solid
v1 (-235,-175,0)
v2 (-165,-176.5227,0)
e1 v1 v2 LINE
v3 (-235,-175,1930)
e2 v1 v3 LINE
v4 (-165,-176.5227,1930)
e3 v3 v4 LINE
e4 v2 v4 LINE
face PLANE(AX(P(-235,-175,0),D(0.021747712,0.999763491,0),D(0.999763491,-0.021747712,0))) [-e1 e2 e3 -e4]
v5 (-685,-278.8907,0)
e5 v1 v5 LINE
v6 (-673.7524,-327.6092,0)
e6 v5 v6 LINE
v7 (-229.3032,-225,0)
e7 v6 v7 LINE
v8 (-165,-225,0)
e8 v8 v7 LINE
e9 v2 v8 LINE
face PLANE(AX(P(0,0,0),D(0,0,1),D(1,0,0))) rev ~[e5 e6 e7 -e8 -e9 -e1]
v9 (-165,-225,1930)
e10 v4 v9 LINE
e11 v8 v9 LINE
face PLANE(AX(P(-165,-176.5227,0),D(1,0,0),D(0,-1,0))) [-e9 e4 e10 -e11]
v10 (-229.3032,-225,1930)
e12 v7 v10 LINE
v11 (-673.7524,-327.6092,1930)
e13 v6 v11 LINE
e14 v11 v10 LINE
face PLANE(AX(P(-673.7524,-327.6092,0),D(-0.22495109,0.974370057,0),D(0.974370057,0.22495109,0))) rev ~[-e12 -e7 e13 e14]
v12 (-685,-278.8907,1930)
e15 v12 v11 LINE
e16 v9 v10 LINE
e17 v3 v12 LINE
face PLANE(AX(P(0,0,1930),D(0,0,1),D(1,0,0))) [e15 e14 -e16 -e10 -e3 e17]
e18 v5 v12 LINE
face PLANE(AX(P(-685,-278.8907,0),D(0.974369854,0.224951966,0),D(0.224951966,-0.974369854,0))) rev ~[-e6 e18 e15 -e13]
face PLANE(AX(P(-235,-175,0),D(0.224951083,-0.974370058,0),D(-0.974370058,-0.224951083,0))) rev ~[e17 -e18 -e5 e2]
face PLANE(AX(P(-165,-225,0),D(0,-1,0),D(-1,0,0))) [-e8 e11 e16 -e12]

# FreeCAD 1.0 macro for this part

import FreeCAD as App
import Part
import Sketcher
Q = App.Units.Quantity


def add_polygon(sketch, points):
    """Adds a closed chain of lines whose ends are joined by coincident constraints."""
    first, n = sketch.GeometryCount, len(points)
    for a, b in zip(points, points[1:] + points[:1]):
        sketch.addGeometry(Part.LineSegment(App.Vector(*a, 0), App.Vector(*b, 0)), False)
    for i in range(n):
        sketch.addConstraint(Sketcher.Constraint("Coincident", first + i, 2, first + (i + 1) % n, 1))

doc = App.newDocument("Part")
body = doc.addObject("PartDesign::Body", "Body")

# Sketch on XY plane
sketch1 = body.newObject("Sketcher::SketchObject", "Sketch")
sketch1.AttachmentSupport = (doc.getObject("XY_Plane"), [""])
sketch1.MapMode = "FlatFace"
add_polygon(sketch1, [(-165, -177), (-235, -175), (-685, -279), (-674, -328), (-229, -225), (-165, -225)])  # lines 0-5
sketch1.addConstraint(Sketcher.Constraint("Horizontal", 4))
sketch1.addConstraint(Sketcher.Constraint("Vertical", 5))
sketch1.addConstraint(Sketcher.Constraint("Perpendicular", 1, 2))
sketch1.addConstraint(Sketcher.Constraint("Perpendicular", 2, 3))
sketch1.addConstraint(Sketcher.Constraint("Angle", 1, Q("-167 deg")))
sketch1.addConstraint(Sketcher.Constraint("Distance", 2, Q("50 mm")))
sketch1.addConstraint(Sketcher.Constraint("DistanceX", 0, 2, -1, 1, Q("235 mm")))
sketch1.addConstraint(Sketcher.Constraint("DistanceY", 0, 2, -1, 1, Q("175 mm")))
sketch1.addConstraint(Sketcher.Constraint("DistanceX", 1, 2, -1, 1, Q("685 mm")))
sketch1.addConstraint(Sketcher.Constraint("DistanceY", 3, 2, -1, 1, Q("225 mm")))
sketch1.addConstraint(Sketcher.Constraint("DistanceX", 4, 2, -1, 1, Q("165 mm")))
sketch1.addConstraint(Sketcher.Constraint("DistanceY", 5, 1, 5, 2, Q("48.4773 mm")))
pad1 = body.newObject("PartDesign::Pad", "Pad")
pad1.Profile = sketch1
pad1.Length = 1930

doc.recompute()
